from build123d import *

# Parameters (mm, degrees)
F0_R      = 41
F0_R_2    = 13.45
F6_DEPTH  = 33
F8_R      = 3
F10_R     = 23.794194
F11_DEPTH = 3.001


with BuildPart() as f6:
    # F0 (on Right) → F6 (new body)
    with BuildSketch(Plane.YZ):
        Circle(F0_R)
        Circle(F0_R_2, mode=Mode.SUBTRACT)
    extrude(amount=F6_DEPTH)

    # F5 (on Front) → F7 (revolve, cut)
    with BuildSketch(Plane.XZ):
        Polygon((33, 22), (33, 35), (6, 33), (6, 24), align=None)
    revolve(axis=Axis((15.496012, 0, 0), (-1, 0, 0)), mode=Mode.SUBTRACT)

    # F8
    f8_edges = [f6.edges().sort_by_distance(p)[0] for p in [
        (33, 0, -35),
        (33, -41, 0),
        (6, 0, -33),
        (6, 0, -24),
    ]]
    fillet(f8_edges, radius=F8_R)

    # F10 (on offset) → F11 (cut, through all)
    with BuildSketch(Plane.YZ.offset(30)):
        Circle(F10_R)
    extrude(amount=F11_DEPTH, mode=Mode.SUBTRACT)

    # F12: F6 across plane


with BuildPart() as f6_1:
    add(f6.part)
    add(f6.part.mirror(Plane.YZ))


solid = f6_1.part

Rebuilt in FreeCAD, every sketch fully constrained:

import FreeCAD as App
import Part
import Sketcher

V = App.Vector


def edges_at(feature, points):
    """Names of the edges that pass closest to the given points."""
    edges = feature.Shape.Edges
    near = lambda p: min(range(len(edges)), key=lambda i: edges[i].distToShape(Part.Vertex(*p))[0])
    return sorted({f"Edge{near(p) + 1}" for p in points})


def add_polygon(sketch, points):
    """Adds a closed chain of lines whose ends are joined by coincident constraints."""
    first, n = sketch.GeometryCount, len(points)
    for a, b in zip(points, points[1:] + points[:1]):
        sketch.addGeometry(Part.LineSegment(App.Vector(*a, 0), App.Vector(*b, 0)), False)
    for i in range(n):
        sketch.addConstraint(Sketcher.Constraint("Coincident", first + i, 2, first + (i + 1) % n, 1))

doc = App.newDocument("Part")
body = doc.addObject("PartDesign::Body", "Body")

# Sketch on YZ plane
sketch1 = doc.addObject("Sketcher::SketchObject", "Sketch")
body.addObject(sketch1)
sketch1.AttachmentSupport = (doc.YZ_Plane, [""])
sketch1.MapMode = "FlatFace"
sketch1.addGeometry([
    Part.Circle(V(0, 0, 0), V(0, 0, 1), 41),
    Part.Circle(V(0, 0, 0), V(0, 0, 1), 13),
], False)
sketch1.addConstraint([
    Sketcher.Constraint("Coincident", 0, 3, -1, 1),
    Sketcher.Constraint("Coincident", 1, 3, -1, 1),
    Sketcher.Constraint("Diameter", 0, 82.0),
    Sketcher.Constraint("Diameter", 1, 26.9),
])
pad1 = doc.addObject("PartDesign::Pad", "Pad")
body.addObject(pad1)
pad1.Profile = sketch1
pad1.Length = 33

# Sketch on XZ plane
sketch2 = doc.addObject("Sketcher::SketchObject", "Sketch001")
body.addObject(sketch2)
sketch2.AttachmentSupport = (doc.XZ_Plane, [""])
sketch2.MapMode = "FlatFace"
add_polygon(sketch2, [(33, 22), (33, 35), (6, 33), (6, 24)])  # lines 0-3
sketch2.addConstraint([
    Sketcher.Constraint("Vertical", 0),
    Sketcher.Constraint("Vertical", 2),
    Sketcher.Constraint("Equal", 1, 3),
    Sketcher.Constraint("DistanceY", 0, 1, 0, 2, 13.0),
    Sketcher.Constraint("DistanceY", 2, 2, 2, 1, 9.0),
    Sketcher.Constraint("DistanceX", -1, 1, 0, 2, 33.0),
    Sketcher.Constraint("DistanceY", -1, 1, 0, 2, 35.0),
    Sketcher.Constraint("DistanceX", -1, 1, 1, 2, 6.0),
])
groove = doc.addObject("PartDesign::Groove", "Groove")
body.addObject(groove)
groove.Profile = sketch2
groove.ReferenceAxis = (sketch2, ["H_Axis"])
groove.Angle = 360
doc.recompute()

fillet = doc.addObject("PartDesign::Fillet", "Fillet")
body.addObject(fillet)
fillet.Base = (groove, edges_at(groove, [
    (33, 0, -35),
    (33, -41, 0),
    (6, 0, -33),
    (6, 0, -24),
]))
fillet.Radius = 3

# Sketch on YZ plane
sketch3 = doc.addObject("Sketcher::SketchObject", "Sketch002")
body.addObject(sketch3)
sketch3.AttachmentSupport = (doc.YZ_Plane, [""])
sketch3.MapMode = "FlatFace"
sketch3.AttachmentOffset = App.Placement(V(0, 0, 30), App.Rotation())
sketch3.addGeometry(Part.Circle(V(0, 0, 0), V(0, 0, 1), 24), False)
sketch3.addConstraint([
    Sketcher.Constraint("Coincident", 0, 3, -1, 1),
    Sketcher.Constraint("Diameter", 0, 47.588388),
])
pocket1 = doc.addObject("PartDesign::Pocket", "Pocket")
body.addObject(pocket1)
pocket1.Profile = sketch3
pocket1.Type = "ThroughAll"
pocket1.Reversed = True
body2 = doc.addObject("PartDesign::Body", "Body001")
doc.recompute()

body2.BaseFeature = body
doc.recompute()

mirroring = doc.addObject("Part::Mirroring", "Mirroring")
mirroring.Source = body
mirroring.Base = V(0, 0, 0)
mirroring.Normal = V(1, 0, 0)
body3 = doc.addObject("PartDesign::Body", "Body002")
body3.BaseFeature = mirroring
boolean = doc.addObject("PartDesign::Boolean", "Boolean")
body2.addObject(boolean)
boolean.Type = "Fuse"
boolean.addObjects([body3])
doc.recompute()
mirroring.Visibility = False

doc.recompute()
